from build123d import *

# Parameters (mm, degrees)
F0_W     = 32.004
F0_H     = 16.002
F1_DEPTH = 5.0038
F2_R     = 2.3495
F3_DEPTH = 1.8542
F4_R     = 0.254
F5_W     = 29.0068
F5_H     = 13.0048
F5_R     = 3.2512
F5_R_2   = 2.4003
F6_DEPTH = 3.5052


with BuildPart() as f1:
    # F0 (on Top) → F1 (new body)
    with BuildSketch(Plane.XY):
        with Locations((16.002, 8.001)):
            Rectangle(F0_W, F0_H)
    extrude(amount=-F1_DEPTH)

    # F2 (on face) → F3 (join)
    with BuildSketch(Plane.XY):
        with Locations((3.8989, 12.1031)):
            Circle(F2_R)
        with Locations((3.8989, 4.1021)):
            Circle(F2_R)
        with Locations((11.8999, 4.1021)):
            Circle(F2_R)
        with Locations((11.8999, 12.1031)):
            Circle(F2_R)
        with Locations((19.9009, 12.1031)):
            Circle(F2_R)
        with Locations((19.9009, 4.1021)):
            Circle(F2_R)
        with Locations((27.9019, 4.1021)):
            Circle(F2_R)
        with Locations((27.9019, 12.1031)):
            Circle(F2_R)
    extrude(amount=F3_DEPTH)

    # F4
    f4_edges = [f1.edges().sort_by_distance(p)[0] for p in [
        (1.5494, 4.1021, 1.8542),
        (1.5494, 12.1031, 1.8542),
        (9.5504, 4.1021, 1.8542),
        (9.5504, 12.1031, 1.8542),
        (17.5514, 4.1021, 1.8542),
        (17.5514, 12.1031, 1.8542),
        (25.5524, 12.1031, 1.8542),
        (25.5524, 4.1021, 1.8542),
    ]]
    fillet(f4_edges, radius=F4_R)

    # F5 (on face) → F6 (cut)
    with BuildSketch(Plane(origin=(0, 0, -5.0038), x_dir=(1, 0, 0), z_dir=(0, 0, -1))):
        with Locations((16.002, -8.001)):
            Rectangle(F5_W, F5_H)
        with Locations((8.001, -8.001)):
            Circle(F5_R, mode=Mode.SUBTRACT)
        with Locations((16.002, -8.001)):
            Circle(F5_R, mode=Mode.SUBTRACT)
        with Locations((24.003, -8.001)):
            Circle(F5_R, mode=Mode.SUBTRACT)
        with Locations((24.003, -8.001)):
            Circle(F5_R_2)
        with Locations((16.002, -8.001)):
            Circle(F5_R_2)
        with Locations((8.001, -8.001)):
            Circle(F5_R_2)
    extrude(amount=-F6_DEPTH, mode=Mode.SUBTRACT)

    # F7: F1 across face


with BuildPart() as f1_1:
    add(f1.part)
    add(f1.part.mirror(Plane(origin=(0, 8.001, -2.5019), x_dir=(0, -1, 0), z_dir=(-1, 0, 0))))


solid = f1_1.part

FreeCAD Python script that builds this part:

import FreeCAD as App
import Part
import Sketcher
Q = App.Units.Quantity


def edges_at(feature, points):
    """Names of the edges that pass closest to the given points."""
    edges = feature.Shape.Edges
    near = lambda p: min(range(len(edges)), key=lambda i: edges[i].distToShape(Part.Vertex(*p))[0])
    return sorted({f"Edge{near(p) + 1}" for p in points})

doc = App.newDocument("Part")
body = doc.addObject("PartDesign::Body", "Body")

sketch1 = body.newObject("Sketcher::SketchObject", "Sketch")
sketch1.AttachmentSupport = (doc.getObject("XY_Plane"), [""])
sketch1.MapMode = "FlatFace"
sketch1.addGeometry(Part.LineSegment(App.Vector(0, 16.002, 0), App.Vector(0, 0, 0)), False)
sketch1.addGeometry(Part.LineSegment(App.Vector(0, 0, 0), App.Vector(32.004, 0, 0)), False)
sketch1.addGeometry(Part.LineSegment(App.Vector(32.004, 0, 0), App.Vector(32.004, 16.002, 0)), False)
sketch1.addGeometry(Part.LineSegment(App.Vector(32.004, 16.002, 0), App.Vector(0, 16.002, 0)), False)
sketch1.addConstraint(Sketcher.Constraint("Coincident", 0, 2, 1, 1))
sketch1.addConstraint(Sketcher.Constraint("Coincident", 1, 2, 2, 1))
sketch1.addConstraint(Sketcher.Constraint("Coincident", 2, 2, 3, 1))
sketch1.addConstraint(Sketcher.Constraint("Coincident", 3, 2, 0, 1))
sketch1.addConstraint(Sketcher.Constraint("Vertical", 0))
sketch1.addConstraint(Sketcher.Constraint("Horizontal", 1))
sketch1.addConstraint(Sketcher.Constraint("Vertical", 2))
sketch1.addConstraint(Sketcher.Constraint("Horizontal", 3))
sketch1.addConstraint(Sketcher.Constraint("Coincident", 0, 2, -1, 1))
sketch1.addConstraint(Sketcher.Constraint("DistanceX", 1, 1, 1, 2, Q("1.26 in")))
sketch1.addConstraint(Sketcher.Constraint("DistanceY", 0, 2, 0, 1, Q("0.63 in")))
pad1 = body.newObject("PartDesign::Pad", "Pad")
pad1.Profile = sketch1
pad1.Length = Q("0.197 in")
pad1.Reversed = True

sketch2 = body.newObject("Sketcher::SketchObject", "Sketch001")
sketch2.AttachmentSupport = (doc.getObject("XY_Plane"), [""])
sketch2.MapMode = "FlatFace"
sketch2.addGeometry(Part.Circle(App.Vector(3.8989, 12.1031, 0), App.Vector(0, 0, 1), 2.3495), False)
sketch2.addGeometry(Part.Circle(App.Vector(3.8989, 4.1021, 0), App.Vector(0, 0, 1), 2.3495), False)
sketch2.addGeometry(Part.Circle(App.Vector(11.8999, 4.1021, 0), App.Vector(0, 0, 1), 2.3495), False)
sketch2.addGeometry(Part.Circle(App.Vector(11.8999, 12.1031, 0), App.Vector(0, 0, 1), 2.3495), False)
sketch2.addGeometry(Part.Circle(App.Vector(19.9009, 12.1031, 0), App.Vector(0, 0, 1), 2.3495), False)
sketch2.addGeometry(Part.Circle(App.Vector(19.9009, 4.1021, 0), App.Vector(0, 0, 1), 2.3495), False)
sketch2.addGeometry(Part.Circle(App.Vector(27.9019, 4.1021, 0), App.Vector(0, 0, 1), 2.3495), False)
sketch2.addGeometry(Part.Circle(App.Vector(27.9019, 12.1031, 0), App.Vector(0, 0, 1), 2.3495), False)
sketch2.addConstraint(Sketcher.Constraint("Equal", 0, 1))
sketch2.addConstraint(Sketcher.Constraint("Equal", 1, 2))
sketch2.addConstraint(Sketcher.Constraint("Equal", 2, 3))
sketch2.addConstraint(Sketcher.Constraint("Equal", 3, 4))
sketch2.addConstraint(Sketcher.Constraint("Equal", 4, 5))
sketch2.addConstraint(Sketcher.Constraint("Equal", 5, 6))
sketch2.addConstraint(Sketcher.Constraint("Equal", 6, 7))
sketch2.addConstraint(Sketcher.Constraint("Horizontal", 1, 3, 2, 3))
sketch2.addConstraint(Sketcher.Constraint("Horizontal", 0, 3, 3, 3))
sketch2.addConstraint(Sketcher.Constraint("Horizontal", 3, 3, 4, 3))
sketch2.addConstraint(Sketcher.Constraint("Horizontal", 2, 3, 5, 3))
sketch2.addConstraint(Sketcher.Constraint("Horizontal", 5, 3, 6, 3))
sketch2.addConstraint(Sketcher.Constraint("Horizontal", 4, 3, 7, 3))
sketch2.addConstraint(Sketcher.Constraint("Vertical", 0, 3, 1, 3))
sketch2.addConstraint(Sketcher.Constraint("Vertical", 2, 3, 3, 3))
sketch2.addConstraint(Sketcher.Constraint("Vertical", 4, 3, 5, 3))
sketch2.addConstraint(Sketcher.Constraint("Vertical", 6, 3, 7, 3))
sketch2.addConstraint(Sketcher.Constraint("Diameter", 0, Q("0.185 in")))
sketch2.addConstraint(Sketcher.Constraint("DistanceX", 0, 3, 4, 3, Q("0.63 in")))
sketch2.addConstraint(Sketcher.Constraint("DistanceX", 2, 3, 6, 3, Q("0.63 in")))
sketch2.addConstraint(Sketcher.Constraint("DistanceY", 1, 3, 0, 3, Q("0.315 in")))
sketch2.addConstraint(Sketcher.Constraint("DistanceX", 1, 3, 2, 3, Q("0.315 in")))
sketch2.addConstraint(Sketcher.Constraint("DistanceX", -1, 1, 0, 3, Q("0.1535 in")))
sketch2.addConstraint(Sketcher.Constraint("DistanceY", -1, 1, 0, 3, Q("0.4765 in")))
pad2 = body.newObject("PartDesign::Pad", "Pad001")
pad2.Profile = sketch2
pad2.Length = Q("0.073 in")
doc.recompute()

fillet = body.newObject("PartDesign::Fillet", "Fillet")
fillet.Base = (pad2, edges_at(pad2, [
    (1.549, 4.102, 1.854),
    (1.549, 12.103, 1.854),
    (9.55, 4.102, 1.854),
    (9.55, 12.103, 1.854),
    (17.551, 4.102, 1.854),
    (17.551, 12.103, 1.854),
    (25.552, 12.103, 1.854),
    (25.552, 4.102, 1.854),
]))
fillet.Radius = Q("0.01 in")

sketch3 = body.newObject("Sketcher::SketchObject", "Sketch002")
sketch3.AttachmentSupport = (doc.getObject("XY_Plane"), [""])
sketch3.MapMode = "FlatFace"
sketch3.AttachmentOffset = App.Placement(App.Vector(0, 0, -0.197 * 25.4), App.Rotation())
sketch3.addGeometry(Part.LineSegment(App.Vector(1.4986, 1.4986, 0), App.Vector(1.4986, 14.5034, 0)), False)
sketch3.addGeometry(Part.LineSegment(App.Vector(1.4986, 14.5034, 0), App.Vector(30.5054, 14.5034, 0)), False)
sketch3.addGeometry(Part.LineSegment(App.Vector(30.5054, 14.5034, 0), App.Vector(30.5054, 1.4986, 0)), False)
sketch3.addGeometry(Part.LineSegment(App.Vector(30.5054, 1.4986, 0), App.Vector(1.4986, 1.4986, 0)), False)
sketch3.addGeometry(Part.Circle(App.Vector(8.001, 8.001, 0), App.Vector(0, 0, 1), 3.2512), False)
sketch3.addGeometry(Part.Circle(App.Vector(16.002, 8.001, 0), App.Vector(0, 0, 1), 3.2512), False)
sketch3.addGeometry(Part.Circle(App.Vector(24.003, 8.001, 0), App.Vector(0, 0, 1), 3.2512), False)
sketch3.addGeometry(Part.Circle(App.Vector(24.003, 8.001, 0), App.Vector(0, 0, 1), 2.4003), False)
sketch3.addGeometry(Part.Circle(App.Vector(16.002, 8.001, 0), App.Vector(0, 0, 1), 2.4003), False)
sketch3.addGeometry(Part.Circle(App.Vector(8.001, 8.001, 0), App.Vector(0, 0, 1), 2.4003), False)
sketch3.addConstraint(Sketcher.Constraint("Coincident", 0, 2, 1, 1))
sketch3.addConstraint(Sketcher.Constraint("Coincident", 1, 2, 2, 1))
sketch3.addConstraint(Sketcher.Constraint("Coincident", 2, 2, 3, 1))
sketch3.addConstraint(Sketcher.Constraint("Coincident", 3, 2, 0, 1))
sketch3.addConstraint(Sketcher.Constraint("Vertical", 0))
sketch3.addConstraint(Sketcher.Constraint("Horizontal", 1))
sketch3.addConstraint(Sketcher.Constraint("Vertical", 2))
sketch3.addConstraint(Sketcher.Constraint("Horizontal", 3))
sketch3.addConstraint(Sketcher.Constraint("Coincident", 7, 3, 6, 3))
sketch3.addConstraint(Sketcher.Constraint("Coincident", 8, 3, 5, 3))
sketch3.addConstraint(Sketcher.Constraint("Coincident", 9, 3, 4, 3))
sketch3.addConstraint(Sketcher.Constraint("Equal", 4, 5))
sketch3.addConstraint(Sketcher.Constraint("Equal", 5, 6))
sketch3.addConstraint(Sketcher.Constraint("Equal", 7, 8))
sketch3.addConstraint(Sketcher.Constraint("Equal", 8, 9))
sketch3.addConstraint(Sketcher.Constraint("Horizontal", 4, 3, 5, 3))
sketch3.addConstraint(Sketcher.Constraint("Horizontal", 5, 3, 6, 3))
sketch3.addConstraint(Sketcher.Constraint("Diameter", 4, Q("0.256 in")))
sketch3.addConstraint(Sketcher.Constraint("Diameter", 7, Q("0.189 in")))
sketch3.addConstraint(Sketcher.Constraint("DistanceX", 1, 1, 1, 2, Q("1.142 in")))
sketch3.addConstraint(Sketcher.Constraint("DistanceY", 0, 1, 0, 2, Q("0.512 in")))
sketch3.addConstraint(Sketcher.Constraint("DistanceX", -1, 1, 5, 3, Q("0.63 in")))
sketch3.addConstraint(Sketcher.Constraint("DistanceX", 4, 3, 6, 3, Q("0.63 in")))
sketch3.addConstraint(Sketcher.Constraint("DistanceX", -1, 1, 4, 3, Q("0.315 in")))
sketch3.addConstraint(Sketcher.Constraint("DistanceY", -1, 1, 4, 3, Q("0.315 in")))
sketch3.addConstraint(Sketcher.Constraint("DistanceX", -1, 1, 0, 2, Q("0.059 in")))
sketch3.addConstraint(Sketcher.Constraint("DistanceY", -1, 1, 0, 2, Q("0.571 in")))
pocket1 = body.newObject("PartDesign::Pocket", "Pocket")
pocket1.Profile = sketch3
pocket1.Length = Q("0.138 in")
pocket1.Reversed = True
body2 = doc.addObject("PartDesign::Body", "Body001")
doc.recompute()

body2.BaseFeature = body
doc.recompute()

mirroring = doc.addObject("Part::Mirroring", "Mirroring")
mirroring.Source = body
mirroring.Base = App.Vector(0, 8.001, -2.5019)
mirroring.Normal = App.Vector(-1, 0, 0)
body3 = doc.addObject("PartDesign::Body", "Body002")
body3.BaseFeature = mirroring
boolean = body2.newObject("PartDesign::Boolean", "Boolean")
boolean.Type = "Fuse"
boolean.addObjects([body3])
doc.recompute()
mirroring.Visibility = False

doc.recompute()
